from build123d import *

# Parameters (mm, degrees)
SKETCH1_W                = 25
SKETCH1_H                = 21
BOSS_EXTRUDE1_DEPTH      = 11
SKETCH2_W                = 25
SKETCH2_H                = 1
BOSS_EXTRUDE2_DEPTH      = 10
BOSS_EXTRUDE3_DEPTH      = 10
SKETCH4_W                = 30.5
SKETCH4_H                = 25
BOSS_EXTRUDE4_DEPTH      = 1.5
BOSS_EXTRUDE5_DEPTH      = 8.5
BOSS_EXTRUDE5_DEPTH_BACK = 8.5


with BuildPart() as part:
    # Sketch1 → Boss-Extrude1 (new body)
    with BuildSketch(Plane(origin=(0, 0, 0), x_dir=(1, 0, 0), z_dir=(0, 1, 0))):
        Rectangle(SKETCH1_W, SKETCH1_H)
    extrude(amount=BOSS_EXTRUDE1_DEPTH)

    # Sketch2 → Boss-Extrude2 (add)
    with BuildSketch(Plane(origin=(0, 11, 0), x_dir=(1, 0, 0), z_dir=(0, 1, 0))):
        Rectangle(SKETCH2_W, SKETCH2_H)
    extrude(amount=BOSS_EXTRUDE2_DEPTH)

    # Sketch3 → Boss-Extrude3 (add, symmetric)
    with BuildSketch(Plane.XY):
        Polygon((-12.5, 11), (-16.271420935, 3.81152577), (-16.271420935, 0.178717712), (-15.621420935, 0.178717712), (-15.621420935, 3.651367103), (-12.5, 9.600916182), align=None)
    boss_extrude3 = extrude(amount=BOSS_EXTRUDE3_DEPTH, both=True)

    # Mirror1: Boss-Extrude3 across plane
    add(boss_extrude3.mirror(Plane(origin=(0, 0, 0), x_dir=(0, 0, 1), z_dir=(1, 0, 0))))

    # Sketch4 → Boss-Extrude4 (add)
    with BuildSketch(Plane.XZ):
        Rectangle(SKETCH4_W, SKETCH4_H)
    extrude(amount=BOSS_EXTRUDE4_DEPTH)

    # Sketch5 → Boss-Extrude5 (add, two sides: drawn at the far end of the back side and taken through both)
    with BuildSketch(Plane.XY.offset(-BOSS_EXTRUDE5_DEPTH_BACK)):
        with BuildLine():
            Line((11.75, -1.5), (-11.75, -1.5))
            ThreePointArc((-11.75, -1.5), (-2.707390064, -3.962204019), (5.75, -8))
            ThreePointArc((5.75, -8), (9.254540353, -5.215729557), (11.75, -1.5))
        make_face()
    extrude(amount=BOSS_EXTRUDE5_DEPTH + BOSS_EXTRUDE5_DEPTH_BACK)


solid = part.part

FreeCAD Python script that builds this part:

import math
import FreeCAD as App
import Part
import Sketcher

doc = App.newDocument("Part")
body = doc.addObject("PartDesign::Body", "Body")

# Sketch on XZ plane
sketch1 = doc.addObject("Sketcher::SketchObject", "Sketch")
body.addObject(sketch1)
sketch1.AttachmentSupport = (doc.XZ_Plane, [""])
sketch1.MapMode = "FlatFace"
sketch1.addGeometry(Part.LineSegment(App.Vector(-12, -10, 0), App.Vector(-12, 10, 0)), False)
sketch1.addGeometry(Part.LineSegment(App.Vector(-12, 10, 0), App.Vector(12, 10, 0)), False)
sketch1.addGeometry(Part.LineSegment(App.Vector(12, 10, 0), App.Vector(12, -10, 0)), False)
sketch1.addGeometry(Part.LineSegment(App.Vector(12, -10, 0), App.Vector(-12, -10, 0)), False)
sketch1.addConstraint(Sketcher.Constraint("Coincident", 0, 2, 1, 1))
sketch1.addConstraint(Sketcher.Constraint("Coincident", 1, 2, 2, 1))
sketch1.addConstraint(Sketcher.Constraint("Coincident", 2, 2, 3, 1))
sketch1.addConstraint(Sketcher.Constraint("Coincident", 3, 2, 0, 1))
sketch1.addConstraint(Sketcher.Constraint("Vertical", 0))
sketch1.addConstraint(Sketcher.Constraint("Horizontal", 1))
sketch1.addConstraint(Sketcher.Constraint("Vertical", 2))
sketch1.addConstraint(Sketcher.Constraint("Horizontal", 3))
sketch1.addConstraint(Sketcher.Constraint("Symmetric", 0, 2, 2, 2, -1, 1))
sketch1.addConstraint(Sketcher.Constraint("DistanceX", 1, 1, 1, 2, 25.0))
sketch1.addConstraint(Sketcher.Constraint("DistanceY", 0, 1, 0, 2, 21.0))
pad1 = doc.addObject("PartDesign::Pad", "Pad")
body.addObject(pad1)
pad1.Profile = sketch1
pad1.Length = 11
pad1.Reversed = True

# Sketch on XZ plane
sketch2 = doc.addObject("Sketcher::SketchObject", "Sketch001")
body.addObject(sketch2)
sketch2.AttachmentSupport = (doc.XZ_Plane, [""])
sketch2.MapMode = "FlatFace"
sketch2.AttachmentOffset = App.Placement(App.Vector(0, 0, -11), App.Rotation())
sketch2.addGeometry(Part.LineSegment(App.Vector(-12.5, -0.5, 0), App.Vector(-12.5, 0.5, 0)), False)
sketch2.addGeometry(Part.LineSegment(App.Vector(-12.5, 0.5, 0), App.Vector(12.5, 0.5, 0)), False)
sketch2.addGeometry(Part.LineSegment(App.Vector(12.5, 0.5, 0), App.Vector(12.5, -0.5, 0)), False)
sketch2.addGeometry(Part.LineSegment(App.Vector(12.5, -0.5, 0), App.Vector(-12.5, -0.5, 0)), False)
sketch2.addConstraint(Sketcher.Constraint("Coincident", 0, 2, 1, 1))
sketch2.addConstraint(Sketcher.Constraint("Coincident", 1, 2, 2, 1))
sketch2.addConstraint(Sketcher.Constraint("Coincident", 2, 2, 3, 1))
sketch2.addConstraint(Sketcher.Constraint("Coincident", 3, 2, 0, 1))
sketch2.addConstraint(Sketcher.Constraint("Vertical", 0))
sketch2.addConstraint(Sketcher.Constraint("Horizontal", 1))
sketch2.addConstraint(Sketcher.Constraint("Vertical", 2))
sketch2.addConstraint(Sketcher.Constraint("Horizontal", 3))
sketch2.addConstraint(Sketcher.Constraint("Symmetric", 0, 2, 2, 2, -1, 1))
sketch2.addConstraint(Sketcher.Constraint("DistanceX", 1, 1, 1, 2, 25.0))
sketch2.addConstraint(Sketcher.Constraint("DistanceY", 0, 1, 0, 2, 1.0))
pad2 = doc.addObject("PartDesign::Pad", "Pad001")
body.addObject(pad2)
pad2.Profile = sketch2
pad2.Length = 10
pad2.Reversed = True

# Sketch on XY plane
sketch3 = doc.addObject("Sketcher::SketchObject", "Sketch002")
body.addObject(sketch3)
sketch3.AttachmentSupport = (doc.XY_Plane, [""])
sketch3.MapMode = "FlatFace"
sketch3.addGeometry(Part.LineSegment(App.Vector(-12.5, 11, 0), App.Vector(-16.3, 3.8, 0)), False)
sketch3.addGeometry(Part.LineSegment(App.Vector(-16.3, 3.8, 0), App.Vector(-16.3, 0.2, 0)), False)
sketch3.addGeometry(Part.LineSegment(App.Vector(-16.3, 0.2, 0), App.Vector(-15.6, 0.2, 0)), False)
sketch3.addGeometry(Part.LineSegment(App.Vector(-15.6, 0.2, 0), App.Vector(-15.6, 3.7, 0)), False)
sketch3.addGeometry(Part.LineSegment(App.Vector(-15.6, 3.7, 0), App.Vector(-12.5, 9.6, 0)), False)
sketch3.addGeometry(Part.LineSegment(App.Vector(-12.5, 9.6, 0), App.Vector(-12.5, 11, 0)), False)
sketch3.addConstraint(Sketcher.Constraint("Coincident", 0, 2, 1, 1))
sketch3.addConstraint(Sketcher.Constraint("Coincident", 1, 2, 2, 1))
sketch3.addConstraint(Sketcher.Constraint("Coincident", 2, 2, 3, 1))
sketch3.addConstraint(Sketcher.Constraint("Coincident", 3, 2, 4, 1))
sketch3.addConstraint(Sketcher.Constraint("Coincident", 4, 2, 5, 1))
sketch3.addConstraint(Sketcher.Constraint("Coincident", 5, 2, 0, 1))
sketch3.addConstraint(Sketcher.Constraint("Vertical", 1))
sketch3.addConstraint(Sketcher.Constraint("Horizontal", 2))
sketch3.addConstraint(Sketcher.Constraint("Vertical", 3))
sketch3.addConstraint(Sketcher.Constraint("Vertical", 5))
sketch3.addConstraint(Sketcher.Constraint("Parallel", 0, 4))
sketch3.addConstraint(Sketcher.Constraint("DistanceY", -1, 1, 5, 2, 11.0))
sketch3.addConstraint(Sketcher.Constraint("DistanceX", 2, 1, 2, 2, 0.65))
sketch3.addConstraint(Sketcher.Constraint("DistanceX", 4, 2, -1, 1, 12.5))
sketch3.addConstraint(Sketcher.Constraint("DistanceY", 1, 2, 1, 1, 3.632808))
sketch3.addConstraint(Sketcher.Constraint("DistanceY", 3, 1, 3, 2, 3.472649))
sketch3.addConstraint(Sketcher.Constraint("DistanceY", 2, 2, 4, 2, 9.422198))
sketch3.addConstraint(Sketcher.Constraint("Distance", 4, 6.718661))
pad3 = doc.addObject("PartDesign::Pad", "Pad002")
body.addObject(pad3)
pad3.Profile = sketch3
pad3.Length = 20
pad3.Midplane = True
doc.recompute()

mirrored = doc.addObject("PartDesign::Mirrored", "Mirrored")
body.addObject(mirrored)
mirrored.Originals = [pad3]
mirrored.MirrorPlane = (doc.YZ_Plane, [""])
body.Tip = mirrored

# Sketch on XZ plane
sketch4 = doc.addObject("Sketcher::SketchObject", "Sketch003")
body.addObject(sketch4)
sketch4.AttachmentSupport = (doc.XZ_Plane, [""])
sketch4.MapMode = "FlatFace"
sketch4.addGeometry(Part.LineSegment(App.Vector(-15, 12, 0), App.Vector(-15, -12, 0)), False)
sketch4.addGeometry(Part.LineSegment(App.Vector(-15, -12, 0), App.Vector(15, -12, 0)), False)
sketch4.addGeometry(Part.LineSegment(App.Vector(15, -12, 0), App.Vector(15, 12, 0)), False)
sketch4.addGeometry(Part.LineSegment(App.Vector(15, 12, 0), App.Vector(-15, 12, 0)), False)
sketch4.addConstraint(Sketcher.Constraint("Coincident", 0, 2, 1, 1))
sketch4.addConstraint(Sketcher.Constraint("Coincident", 1, 2, 2, 1))
sketch4.addConstraint(Sketcher.Constraint("Coincident", 2, 2, 3, 1))
sketch4.addConstraint(Sketcher.Constraint("Coincident", 3, 2, 0, 1))
sketch4.addConstraint(Sketcher.Constraint("Vertical", 0))
sketch4.addConstraint(Sketcher.Constraint("Horizontal", 1))
sketch4.addConstraint(Sketcher.Constraint("Vertical", 2))
sketch4.addConstraint(Sketcher.Constraint("Horizontal", 3))
sketch4.addConstraint(Sketcher.Constraint("Symmetric", 0, 2, 2, 2, -1, 1))
sketch4.addConstraint(Sketcher.Constraint("DistanceY", 0, 2, 0, 1, 25.0))
sketch4.addConstraint(Sketcher.Constraint("DistanceX", 1, 1, 1, 2, 30.5))
pad4 = doc.addObject("PartDesign::Pad", "Pad003")
body.addObject(pad4)
pad4.Profile = sketch4
pad4.Length = 1.5

# Sketch on XY plane
sketch5 = doc.addObject("Sketcher::SketchObject", "Sketch004")
body.addObject(sketch5)
sketch5.AttachmentSupport = (doc.XY_Plane, [""])
sketch5.MapMode = "FlatFace"
sketch5.addGeometry(Part.LineSegment(App.Vector(12, -2, 0), App.Vector(-12, -2, 0)), False)
sketch5.addGeometry(Part.ArcOfCircle(Part.Circle(App.Vector(-21, -53, 0), App.Vector(0, 0, 1), 52), math.radians(59), math.radians(80)), False)
sketch5.addGeometry(Part.ArcOfCircle(Part.Circle(App.Vector(-1, 5, 0), App.Vector(0, 0, 1), 15), math.radians(-60), math.radians(-25)), False)
sketch5.addConstraint(Sketcher.Constraint("Coincident", 0, 2, 1, 2))
sketch5.addConstraint(Sketcher.Constraint("Coincident", 1, 1, 2, 1))
sketch5.addConstraint(Sketcher.Constraint("Coincident", 2, 2, 0, 1))
sketch5.addConstraint(Sketcher.Constraint("Horizontal", 0))
sketch5.addConstraint(Sketcher.Constraint("DistanceX", 0, 2, 0, 1, 23.5))
sketch5.addConstraint(Sketcher.Constraint("DistanceY", 1, 1, -1, 1, 8.0))
sketch5.addConstraint(Sketcher.Constraint("DistanceX", 1, 1, 2, 2, 6.0))
sketch5.addConstraint(Sketcher.Constraint("DistanceY", 0, 2, -1, 1, 1.5))
sketch5.addConstraint(Sketcher.Constraint("DistanceX", 0, 2, -1, 1, 11.75))
sketch5.addConstraint(Sketcher.Constraint("Radius", 1, 52.256694))
sketch5.addConstraint(Sketcher.Constraint("Radius", 2, 14.588552))
pad5 = doc.addObject("PartDesign::Pad", "Pad004")
body.addObject(pad5)
pad5.Profile = sketch5
pad5.Type = "TwoLengths"
pad5.Length = 8.5
pad5.Length2 = 8.5

doc.recompute()
